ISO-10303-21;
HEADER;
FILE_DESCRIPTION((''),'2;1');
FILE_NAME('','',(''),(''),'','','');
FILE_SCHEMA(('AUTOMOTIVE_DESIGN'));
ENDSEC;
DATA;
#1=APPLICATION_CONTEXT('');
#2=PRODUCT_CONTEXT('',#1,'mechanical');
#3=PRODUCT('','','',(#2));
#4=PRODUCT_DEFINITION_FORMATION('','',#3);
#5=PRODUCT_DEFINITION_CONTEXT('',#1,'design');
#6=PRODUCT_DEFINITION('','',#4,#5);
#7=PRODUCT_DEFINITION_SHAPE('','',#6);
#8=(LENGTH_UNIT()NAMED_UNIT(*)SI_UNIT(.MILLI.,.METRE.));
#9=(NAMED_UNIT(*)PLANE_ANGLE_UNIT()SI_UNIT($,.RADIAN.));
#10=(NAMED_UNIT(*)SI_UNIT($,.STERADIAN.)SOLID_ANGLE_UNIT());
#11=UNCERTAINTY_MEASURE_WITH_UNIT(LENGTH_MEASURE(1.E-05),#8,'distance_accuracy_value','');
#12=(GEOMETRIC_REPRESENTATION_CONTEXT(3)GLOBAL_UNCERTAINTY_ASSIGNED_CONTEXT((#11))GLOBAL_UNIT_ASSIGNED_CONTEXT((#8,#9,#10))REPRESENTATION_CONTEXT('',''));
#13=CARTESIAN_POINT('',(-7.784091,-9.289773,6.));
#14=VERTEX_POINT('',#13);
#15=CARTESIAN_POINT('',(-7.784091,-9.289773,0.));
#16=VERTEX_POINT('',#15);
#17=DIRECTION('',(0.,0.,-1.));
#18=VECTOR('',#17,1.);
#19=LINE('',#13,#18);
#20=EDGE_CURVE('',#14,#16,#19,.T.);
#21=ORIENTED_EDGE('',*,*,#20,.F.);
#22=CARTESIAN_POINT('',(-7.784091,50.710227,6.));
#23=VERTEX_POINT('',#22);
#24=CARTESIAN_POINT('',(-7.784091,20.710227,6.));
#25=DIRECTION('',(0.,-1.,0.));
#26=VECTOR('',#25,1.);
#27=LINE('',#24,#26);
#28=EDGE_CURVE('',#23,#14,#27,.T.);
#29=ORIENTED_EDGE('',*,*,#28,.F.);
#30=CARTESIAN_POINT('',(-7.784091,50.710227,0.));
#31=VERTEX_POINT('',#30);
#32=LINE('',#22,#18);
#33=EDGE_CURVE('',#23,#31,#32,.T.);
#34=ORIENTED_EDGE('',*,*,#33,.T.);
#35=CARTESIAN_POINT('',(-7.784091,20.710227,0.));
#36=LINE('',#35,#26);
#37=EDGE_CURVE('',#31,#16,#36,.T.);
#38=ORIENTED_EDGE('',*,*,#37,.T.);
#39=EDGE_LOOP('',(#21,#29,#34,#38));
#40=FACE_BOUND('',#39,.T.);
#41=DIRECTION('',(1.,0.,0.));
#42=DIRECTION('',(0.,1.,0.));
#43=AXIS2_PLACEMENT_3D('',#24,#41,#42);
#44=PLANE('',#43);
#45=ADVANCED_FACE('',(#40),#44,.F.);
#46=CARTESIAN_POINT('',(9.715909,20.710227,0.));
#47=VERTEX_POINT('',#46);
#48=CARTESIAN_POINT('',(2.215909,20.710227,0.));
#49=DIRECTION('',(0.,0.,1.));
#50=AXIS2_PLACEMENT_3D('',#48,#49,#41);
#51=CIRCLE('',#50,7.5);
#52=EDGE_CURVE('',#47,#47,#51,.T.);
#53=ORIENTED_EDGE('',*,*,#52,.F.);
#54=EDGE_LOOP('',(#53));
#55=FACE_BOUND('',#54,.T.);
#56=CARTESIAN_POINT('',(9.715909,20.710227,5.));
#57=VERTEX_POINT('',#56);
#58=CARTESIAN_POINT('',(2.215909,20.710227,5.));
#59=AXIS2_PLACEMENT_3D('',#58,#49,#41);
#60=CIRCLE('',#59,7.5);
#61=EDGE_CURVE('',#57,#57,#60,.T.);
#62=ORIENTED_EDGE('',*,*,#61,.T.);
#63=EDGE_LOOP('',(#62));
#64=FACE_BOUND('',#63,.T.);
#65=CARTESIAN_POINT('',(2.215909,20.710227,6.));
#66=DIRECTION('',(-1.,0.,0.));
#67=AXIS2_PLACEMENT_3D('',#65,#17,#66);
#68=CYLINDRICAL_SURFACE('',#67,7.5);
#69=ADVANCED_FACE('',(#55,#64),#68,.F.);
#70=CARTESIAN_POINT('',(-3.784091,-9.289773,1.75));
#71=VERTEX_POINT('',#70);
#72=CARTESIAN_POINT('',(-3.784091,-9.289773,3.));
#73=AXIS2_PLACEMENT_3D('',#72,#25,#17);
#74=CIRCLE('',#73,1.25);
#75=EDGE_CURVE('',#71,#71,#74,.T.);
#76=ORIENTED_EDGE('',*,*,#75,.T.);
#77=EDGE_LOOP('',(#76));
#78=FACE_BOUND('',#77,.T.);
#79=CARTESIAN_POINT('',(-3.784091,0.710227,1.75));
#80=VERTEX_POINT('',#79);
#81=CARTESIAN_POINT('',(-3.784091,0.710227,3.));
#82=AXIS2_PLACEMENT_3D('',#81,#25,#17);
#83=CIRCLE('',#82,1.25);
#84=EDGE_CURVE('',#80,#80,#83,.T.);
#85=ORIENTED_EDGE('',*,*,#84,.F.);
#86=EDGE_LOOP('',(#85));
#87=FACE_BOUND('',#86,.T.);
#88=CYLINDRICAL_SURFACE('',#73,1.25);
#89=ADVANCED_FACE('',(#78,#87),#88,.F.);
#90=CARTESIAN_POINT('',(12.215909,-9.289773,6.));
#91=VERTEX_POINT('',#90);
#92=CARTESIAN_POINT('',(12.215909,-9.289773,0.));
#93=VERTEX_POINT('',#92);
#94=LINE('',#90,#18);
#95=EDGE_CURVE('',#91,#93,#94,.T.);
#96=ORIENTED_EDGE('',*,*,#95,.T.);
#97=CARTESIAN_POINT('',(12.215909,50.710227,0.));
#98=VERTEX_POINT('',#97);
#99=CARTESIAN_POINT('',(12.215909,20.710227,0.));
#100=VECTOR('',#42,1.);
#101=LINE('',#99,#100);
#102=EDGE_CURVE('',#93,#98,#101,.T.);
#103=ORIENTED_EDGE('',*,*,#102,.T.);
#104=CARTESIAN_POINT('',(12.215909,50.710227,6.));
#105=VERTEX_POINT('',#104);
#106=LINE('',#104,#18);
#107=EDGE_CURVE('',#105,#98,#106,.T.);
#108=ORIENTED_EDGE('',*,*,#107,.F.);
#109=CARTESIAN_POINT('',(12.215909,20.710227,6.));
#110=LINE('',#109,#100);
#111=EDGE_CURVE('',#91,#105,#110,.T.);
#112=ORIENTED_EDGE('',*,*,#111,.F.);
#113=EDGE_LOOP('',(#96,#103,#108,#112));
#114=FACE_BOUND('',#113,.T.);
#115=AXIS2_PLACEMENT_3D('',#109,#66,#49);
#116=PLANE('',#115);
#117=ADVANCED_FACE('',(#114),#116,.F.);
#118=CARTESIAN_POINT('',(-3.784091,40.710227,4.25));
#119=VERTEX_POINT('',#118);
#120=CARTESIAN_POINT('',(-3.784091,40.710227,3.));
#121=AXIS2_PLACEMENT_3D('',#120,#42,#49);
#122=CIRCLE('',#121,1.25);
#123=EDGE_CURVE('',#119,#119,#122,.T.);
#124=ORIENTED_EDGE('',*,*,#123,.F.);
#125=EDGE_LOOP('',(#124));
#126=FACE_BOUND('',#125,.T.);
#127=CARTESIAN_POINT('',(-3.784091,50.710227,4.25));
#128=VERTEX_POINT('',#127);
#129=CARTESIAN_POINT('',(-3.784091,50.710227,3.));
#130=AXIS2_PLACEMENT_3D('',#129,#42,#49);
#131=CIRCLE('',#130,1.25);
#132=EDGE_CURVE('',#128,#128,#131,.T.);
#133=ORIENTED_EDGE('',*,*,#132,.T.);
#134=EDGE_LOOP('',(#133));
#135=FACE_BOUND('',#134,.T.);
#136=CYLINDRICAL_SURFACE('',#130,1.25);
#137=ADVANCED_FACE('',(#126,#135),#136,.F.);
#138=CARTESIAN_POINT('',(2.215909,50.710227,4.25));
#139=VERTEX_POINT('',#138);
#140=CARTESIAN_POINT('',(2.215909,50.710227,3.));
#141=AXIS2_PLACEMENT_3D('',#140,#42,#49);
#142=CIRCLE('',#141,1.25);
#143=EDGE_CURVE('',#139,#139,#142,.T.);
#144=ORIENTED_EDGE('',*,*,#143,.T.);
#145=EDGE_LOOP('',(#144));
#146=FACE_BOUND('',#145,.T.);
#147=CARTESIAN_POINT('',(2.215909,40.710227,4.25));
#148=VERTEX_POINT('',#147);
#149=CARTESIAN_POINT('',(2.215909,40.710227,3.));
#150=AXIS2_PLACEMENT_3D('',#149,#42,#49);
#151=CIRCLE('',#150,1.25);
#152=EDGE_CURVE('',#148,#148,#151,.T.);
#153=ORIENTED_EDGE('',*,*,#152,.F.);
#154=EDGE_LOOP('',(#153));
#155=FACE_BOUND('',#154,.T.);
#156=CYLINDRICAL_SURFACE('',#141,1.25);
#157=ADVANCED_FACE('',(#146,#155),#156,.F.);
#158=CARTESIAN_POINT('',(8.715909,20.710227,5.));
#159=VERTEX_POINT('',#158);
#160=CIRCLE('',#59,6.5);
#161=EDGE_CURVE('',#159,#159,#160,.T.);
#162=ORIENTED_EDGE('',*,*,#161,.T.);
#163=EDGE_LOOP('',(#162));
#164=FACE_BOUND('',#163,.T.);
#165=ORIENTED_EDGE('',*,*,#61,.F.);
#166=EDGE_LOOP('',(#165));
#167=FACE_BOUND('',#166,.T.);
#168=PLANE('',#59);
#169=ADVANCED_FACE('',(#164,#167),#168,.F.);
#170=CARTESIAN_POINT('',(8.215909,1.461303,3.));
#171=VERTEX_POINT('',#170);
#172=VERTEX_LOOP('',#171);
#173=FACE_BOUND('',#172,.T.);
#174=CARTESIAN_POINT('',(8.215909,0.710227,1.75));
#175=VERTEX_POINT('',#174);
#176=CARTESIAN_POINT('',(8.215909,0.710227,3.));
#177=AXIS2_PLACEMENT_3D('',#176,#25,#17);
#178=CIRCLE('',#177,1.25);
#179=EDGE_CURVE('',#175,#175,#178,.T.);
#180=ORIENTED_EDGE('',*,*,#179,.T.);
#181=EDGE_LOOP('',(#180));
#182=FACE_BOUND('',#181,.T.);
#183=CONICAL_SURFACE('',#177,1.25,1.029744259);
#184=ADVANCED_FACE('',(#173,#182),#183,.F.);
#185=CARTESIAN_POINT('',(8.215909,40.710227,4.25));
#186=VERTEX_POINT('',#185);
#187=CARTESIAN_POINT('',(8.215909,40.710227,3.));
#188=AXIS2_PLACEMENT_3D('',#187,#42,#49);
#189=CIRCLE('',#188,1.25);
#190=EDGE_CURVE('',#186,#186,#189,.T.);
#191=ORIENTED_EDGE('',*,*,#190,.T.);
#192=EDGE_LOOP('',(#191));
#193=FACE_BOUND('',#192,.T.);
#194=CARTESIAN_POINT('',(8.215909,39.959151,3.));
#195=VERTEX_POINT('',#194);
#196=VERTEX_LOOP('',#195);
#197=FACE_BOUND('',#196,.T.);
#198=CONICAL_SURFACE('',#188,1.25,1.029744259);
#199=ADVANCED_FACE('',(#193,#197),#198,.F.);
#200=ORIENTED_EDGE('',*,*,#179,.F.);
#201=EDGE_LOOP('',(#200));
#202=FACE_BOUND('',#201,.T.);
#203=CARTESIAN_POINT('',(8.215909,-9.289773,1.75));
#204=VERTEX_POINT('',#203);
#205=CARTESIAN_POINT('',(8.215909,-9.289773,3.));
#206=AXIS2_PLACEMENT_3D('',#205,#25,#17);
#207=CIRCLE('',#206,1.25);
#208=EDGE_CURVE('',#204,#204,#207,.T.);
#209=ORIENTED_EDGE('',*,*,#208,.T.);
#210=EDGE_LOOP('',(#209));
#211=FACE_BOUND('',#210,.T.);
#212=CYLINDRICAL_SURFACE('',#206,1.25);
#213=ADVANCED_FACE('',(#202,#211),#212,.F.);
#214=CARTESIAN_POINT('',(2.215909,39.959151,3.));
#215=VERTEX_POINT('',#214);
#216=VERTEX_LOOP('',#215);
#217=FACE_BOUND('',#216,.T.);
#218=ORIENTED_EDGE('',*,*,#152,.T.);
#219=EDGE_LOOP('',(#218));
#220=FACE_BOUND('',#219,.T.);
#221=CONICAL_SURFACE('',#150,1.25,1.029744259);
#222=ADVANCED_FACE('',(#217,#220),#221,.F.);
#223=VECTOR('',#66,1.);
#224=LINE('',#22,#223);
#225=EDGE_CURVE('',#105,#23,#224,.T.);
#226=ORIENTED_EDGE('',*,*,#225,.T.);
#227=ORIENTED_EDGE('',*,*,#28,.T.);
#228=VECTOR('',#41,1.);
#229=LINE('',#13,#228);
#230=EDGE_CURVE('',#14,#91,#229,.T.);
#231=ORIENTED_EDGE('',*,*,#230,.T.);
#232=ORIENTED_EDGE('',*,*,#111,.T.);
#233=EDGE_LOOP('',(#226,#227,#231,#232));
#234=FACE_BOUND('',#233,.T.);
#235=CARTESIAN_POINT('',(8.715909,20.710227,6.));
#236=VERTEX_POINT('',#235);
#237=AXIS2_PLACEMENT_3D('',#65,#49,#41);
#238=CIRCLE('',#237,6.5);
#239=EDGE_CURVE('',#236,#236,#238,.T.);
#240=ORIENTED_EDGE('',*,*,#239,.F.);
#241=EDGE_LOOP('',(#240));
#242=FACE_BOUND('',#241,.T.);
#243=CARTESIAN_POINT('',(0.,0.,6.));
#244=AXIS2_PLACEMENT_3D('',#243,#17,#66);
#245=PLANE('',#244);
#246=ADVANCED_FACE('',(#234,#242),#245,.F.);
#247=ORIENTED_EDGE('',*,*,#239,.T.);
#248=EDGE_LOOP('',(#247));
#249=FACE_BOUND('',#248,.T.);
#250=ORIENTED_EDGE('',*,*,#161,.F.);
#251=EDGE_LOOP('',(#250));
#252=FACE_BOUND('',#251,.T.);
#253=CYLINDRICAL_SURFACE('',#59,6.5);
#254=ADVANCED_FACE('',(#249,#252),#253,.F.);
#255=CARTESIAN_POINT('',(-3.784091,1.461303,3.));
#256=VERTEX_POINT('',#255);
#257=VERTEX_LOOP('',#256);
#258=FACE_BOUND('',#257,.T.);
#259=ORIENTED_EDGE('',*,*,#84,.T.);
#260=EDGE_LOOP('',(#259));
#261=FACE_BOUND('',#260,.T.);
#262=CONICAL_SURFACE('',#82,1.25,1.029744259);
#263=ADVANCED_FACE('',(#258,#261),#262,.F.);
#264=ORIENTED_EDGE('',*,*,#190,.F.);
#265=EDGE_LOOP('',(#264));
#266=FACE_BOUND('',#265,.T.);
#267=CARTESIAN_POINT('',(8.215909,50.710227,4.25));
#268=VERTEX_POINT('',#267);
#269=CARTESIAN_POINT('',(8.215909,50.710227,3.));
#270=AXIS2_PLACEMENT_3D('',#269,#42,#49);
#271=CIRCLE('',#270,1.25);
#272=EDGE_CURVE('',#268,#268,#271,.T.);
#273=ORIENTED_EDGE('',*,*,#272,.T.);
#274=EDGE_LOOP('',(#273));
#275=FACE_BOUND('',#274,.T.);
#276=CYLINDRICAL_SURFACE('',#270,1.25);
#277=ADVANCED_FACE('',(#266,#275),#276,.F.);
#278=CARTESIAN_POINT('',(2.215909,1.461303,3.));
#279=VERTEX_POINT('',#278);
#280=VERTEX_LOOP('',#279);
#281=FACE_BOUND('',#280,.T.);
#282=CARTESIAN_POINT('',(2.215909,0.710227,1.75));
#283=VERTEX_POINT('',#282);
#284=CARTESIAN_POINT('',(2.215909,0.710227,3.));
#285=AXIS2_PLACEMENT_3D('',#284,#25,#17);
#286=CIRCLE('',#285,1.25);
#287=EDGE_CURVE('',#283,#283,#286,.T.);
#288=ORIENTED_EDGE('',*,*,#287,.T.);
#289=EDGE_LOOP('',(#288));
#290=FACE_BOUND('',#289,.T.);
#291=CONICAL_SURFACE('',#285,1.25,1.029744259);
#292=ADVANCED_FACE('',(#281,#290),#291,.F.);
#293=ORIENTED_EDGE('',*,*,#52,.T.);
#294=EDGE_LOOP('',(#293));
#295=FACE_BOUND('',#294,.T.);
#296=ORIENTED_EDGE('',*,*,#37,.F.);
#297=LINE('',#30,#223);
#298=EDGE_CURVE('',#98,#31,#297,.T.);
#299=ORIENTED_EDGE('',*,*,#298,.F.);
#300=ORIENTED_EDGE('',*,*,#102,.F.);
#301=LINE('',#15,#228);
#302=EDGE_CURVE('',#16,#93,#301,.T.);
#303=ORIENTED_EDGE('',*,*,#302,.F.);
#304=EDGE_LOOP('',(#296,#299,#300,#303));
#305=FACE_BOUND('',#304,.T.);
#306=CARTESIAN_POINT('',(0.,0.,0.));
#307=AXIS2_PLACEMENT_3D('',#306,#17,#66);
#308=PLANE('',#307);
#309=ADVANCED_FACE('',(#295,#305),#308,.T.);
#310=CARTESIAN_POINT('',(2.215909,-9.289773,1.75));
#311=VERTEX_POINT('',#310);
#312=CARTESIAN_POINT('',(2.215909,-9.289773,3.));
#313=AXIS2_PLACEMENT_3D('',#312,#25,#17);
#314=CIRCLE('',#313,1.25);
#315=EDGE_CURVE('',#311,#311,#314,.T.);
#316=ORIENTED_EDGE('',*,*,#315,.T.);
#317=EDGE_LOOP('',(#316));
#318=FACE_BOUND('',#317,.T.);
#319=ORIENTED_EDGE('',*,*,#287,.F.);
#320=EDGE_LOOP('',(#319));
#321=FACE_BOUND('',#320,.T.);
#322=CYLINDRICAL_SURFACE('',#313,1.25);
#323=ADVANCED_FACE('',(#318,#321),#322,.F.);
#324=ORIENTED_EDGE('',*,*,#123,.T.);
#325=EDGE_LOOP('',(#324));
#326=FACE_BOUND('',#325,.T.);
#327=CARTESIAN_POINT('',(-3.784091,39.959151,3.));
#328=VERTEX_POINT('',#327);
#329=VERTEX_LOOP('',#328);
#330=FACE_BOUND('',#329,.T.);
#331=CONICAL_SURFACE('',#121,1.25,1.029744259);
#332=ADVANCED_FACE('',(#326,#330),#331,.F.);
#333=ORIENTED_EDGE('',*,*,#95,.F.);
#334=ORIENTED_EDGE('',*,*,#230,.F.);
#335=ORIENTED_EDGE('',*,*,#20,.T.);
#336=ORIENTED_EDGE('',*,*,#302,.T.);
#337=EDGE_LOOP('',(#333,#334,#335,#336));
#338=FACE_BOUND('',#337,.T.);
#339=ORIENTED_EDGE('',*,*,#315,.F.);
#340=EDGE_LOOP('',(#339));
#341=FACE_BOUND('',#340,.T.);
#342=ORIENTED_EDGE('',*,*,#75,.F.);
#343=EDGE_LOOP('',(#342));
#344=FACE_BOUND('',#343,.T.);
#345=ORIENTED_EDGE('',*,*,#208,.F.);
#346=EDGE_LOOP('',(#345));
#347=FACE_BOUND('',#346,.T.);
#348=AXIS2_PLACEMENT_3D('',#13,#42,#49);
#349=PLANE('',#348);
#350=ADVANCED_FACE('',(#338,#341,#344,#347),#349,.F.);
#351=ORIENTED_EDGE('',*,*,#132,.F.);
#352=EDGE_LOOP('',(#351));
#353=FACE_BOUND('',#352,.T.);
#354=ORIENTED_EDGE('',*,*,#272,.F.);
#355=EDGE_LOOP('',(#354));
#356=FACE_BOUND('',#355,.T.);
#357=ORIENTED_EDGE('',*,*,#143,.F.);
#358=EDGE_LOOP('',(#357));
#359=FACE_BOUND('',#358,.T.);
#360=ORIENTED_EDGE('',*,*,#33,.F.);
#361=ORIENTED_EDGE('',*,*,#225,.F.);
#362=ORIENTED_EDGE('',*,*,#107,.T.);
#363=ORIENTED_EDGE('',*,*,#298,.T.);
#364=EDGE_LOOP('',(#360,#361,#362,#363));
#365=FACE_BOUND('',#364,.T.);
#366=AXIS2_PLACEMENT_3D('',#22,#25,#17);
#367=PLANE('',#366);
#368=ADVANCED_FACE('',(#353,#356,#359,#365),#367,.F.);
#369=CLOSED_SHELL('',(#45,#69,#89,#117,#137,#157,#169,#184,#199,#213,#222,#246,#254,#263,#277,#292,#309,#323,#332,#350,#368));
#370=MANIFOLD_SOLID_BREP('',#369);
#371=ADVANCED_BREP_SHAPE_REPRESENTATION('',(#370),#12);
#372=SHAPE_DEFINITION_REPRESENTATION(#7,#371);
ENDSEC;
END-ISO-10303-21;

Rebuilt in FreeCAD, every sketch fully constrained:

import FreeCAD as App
import Part
import Sketcher

V = App.Vector

doc = App.newDocument("Part")
body = doc.addObject("PartDesign::Body", "Body")

# Sketch on XY plane
sketch1 = body.newObject("Sketcher::SketchObject", "Sketch")
sketch1.AttachmentSupport = (doc.getObject("XY_Plane"), [""])
sketch1.MapMode = "FlatFace"
sketch1.addGeometry([
    Part.LineSegment(V(-7.784091, -9.289773, 0), V(12.215909, -9.289773, 0)),  # 0
    Part.LineSegment(V(12.215909, -9.289773, 0), V(12.215909, 50.710227, 0)),  # 1
    Part.LineSegment(V(12.215909, 50.710227, 0), V(-7.784091, 50.710227, 0)),  # 2
    Part.LineSegment(V(-7.784091, 50.710227, 0), V(-7.784091, -9.289773, 0)),  # 3
    Part.Circle(V(2.215909, 20.710227, 0), V(0, 0, 1), 7.5),  # 4
], False)
sketch1.addConstraint([
    Sketcher.Constraint("Coincident", 0, 2, 1, 1),
    Sketcher.Constraint("Coincident", 1, 2, 2, 1),
    Sketcher.Constraint("Coincident", 2, 2, 3, 1),
    Sketcher.Constraint("Coincident", 3, 2, 0, 1),
    Sketcher.Constraint("Horizontal", 0),
    Sketcher.Constraint("Vertical", 1),
    Sketcher.Constraint("Horizontal", 2),
    Sketcher.Constraint("Vertical", 3),
    Sketcher.Constraint("Diameter", 4, 15.0),
    Sketcher.Constraint("DistanceX", 0, 1, 0, 2, 20.0),
    Sketcher.Constraint("DistanceY", 1, 1, 1, 2, 60.0),
    Sketcher.Constraint("DistanceX", 4, 3, 0, 2, 10.0),
    Sketcher.Constraint("DistanceY", 0, 2, 4, 3, 30.0),
    Sketcher.Constraint("DistanceX", -1, 1, 4, 3, 2.215909),
    Sketcher.Constraint("DistanceY", -1, 1, 4, 3, 20.710227),
])
pad1 = body.newObject("PartDesign::Pad", "Pad")
pad1.Profile = sketch1
pad1.Length = 6

# Sketch on XY plane
sketch2 = body.newObject("Sketcher::SketchObject", "Sketch001")
sketch2.AttachmentSupport = (doc.getObject("XY_Plane"), [""])
sketch2.MapMode = "FlatFace"
sketch2.AttachmentOffset = App.Placement(V(0, 0, 6), App.Rotation())
sketch2.addGeometry([
    Part.Circle(V(2.215909, 20.710227, 0), V(0, 0, 1), 7.5),
    Part.Circle(V(2.215909, 20.710227, 0), V(0, 0, 1), 6.5),
], False)
sketch2.addConstraint([
    Sketcher.Constraint("Coincident", 1, 3, 0, 3),
    Sketcher.Constraint("Diameter", 0, 15.0),
    Sketcher.Constraint("Diameter", 1, 13.0),
    Sketcher.Constraint("DistanceX", -1, 1, 0, 3, 2.215909),
    Sketcher.Constraint("DistanceY", -1, 1, 0, 3, 20.710227),
])
pad2 = body.newObject("PartDesign::Pad", "Pad001")
pad2.Profile = sketch2
pad2.Length = 1
pad2.Reversed = True

# Sketch on XZ plane
sketch3 = body.newObject("Sketcher::SketchObject", "Sketch002")
sketch3.AttachmentSupport = (doc.getObject("XZ_Plane"), [""])
sketch3.MapMode = "FlatFace"
sketch3.AttachmentOffset = App.Placement(V(0, 0, 9.289773), App.Rotation())
sketch3.addGeometry([
    Part.Circle(V(-3.784091, 3, 0), V(0, 0, 1), 1.25),
    Part.Circle(V(2.215909, 3, 0), V(0, 0, 1), 1.25),
    Part.Circle(V(8.215909, 3, 0), V(0, 0, 1), 1.25),
], False)
sketch3.addConstraint([
    Sketcher.Constraint("Equal", 0, 1),
    Sketcher.Constraint("Equal", 1, 2),
    Sketcher.Constraint("Horizontal", 0, 3, 1, 3),
    Sketcher.Constraint("Horizontal", 1, 3, 2, 3),
    Sketcher.Constraint("Diameter", 0, 2.5),
    Sketcher.Constraint("DistanceY", -1, 1, 0, 3, 3.0),
    Sketcher.Constraint("DistanceX", 0, 3, 1, 3, 6.0),
    Sketcher.Constraint("DistanceX", 1, 3, 2, 3, 6.0),
    Sketcher.Constraint("DistanceX", 0, 3, -1, 1, 3.784091),
])
doc.recompute()
hole = body.newObject("PartDesign::Hole", "Hole")
hole.Profile = sketch3
hole.ThreadType = "None"
hole.Diameter = 2.5
hole.DepthType = "Dimension"
hole.Depth = 10
hole.DrillPoint = "Angled"
hole.DrillPointAngle = 118

# Sketch on XZ plane
sketch4 = body.newObject("Sketcher::SketchObject", "Sketch003")
sketch4.AttachmentSupport = (doc.getObject("XZ_Plane"), [""])
sketch4.MapMode = "FlatFace"
sketch4.AttachmentOffset = App.Placement(V(0, 0, -50.710227), App.Rotation())
sketch4.addGeometry([
    Part.Circle(V(-3.784091, 3, 0), V(0, 0, 1), 1.25),
    Part.Circle(V(2.215909, 3, 0), V(0, 0, 1), 1.25),
    Part.Circle(V(8.215909, 3, 0), V(0, 0, 1), 1.25),
], False)
sketch4.addConstraint([
    Sketcher.Constraint("Equal", 0, 1),
    Sketcher.Constraint("Equal", 1, 2),
    Sketcher.Constraint("Horizontal", 0, 3, 1, 3),
    Sketcher.Constraint("Horizontal", 1, 3, 2, 3),
    Sketcher.Constraint("Diameter", 0, 2.5),
    Sketcher.Constraint("DistanceY", -1, 1, 0, 3, 3.0),
    Sketcher.Constraint("DistanceX", 0, 3, 1, 3, 6.0),
    Sketcher.Constraint("DistanceX", 1, 3, 2, 3, 6.0),
    Sketcher.Constraint("DistanceX", 0, 3, -1, 1, 3.784091),
])
doc.recompute()
hole2 = body.newObject("PartDesign::Hole", "Hole001")
hole2.Profile = sketch4
hole2.ThreadType = "None"
hole2.Diameter = 2.5
hole2.DepthType = "Dimension"
hole2.Depth = 10
hole2.DrillPoint = "Angled"
hole2.DrillPointAngle = 118
hole2.Reversed = True

doc.recompute()
